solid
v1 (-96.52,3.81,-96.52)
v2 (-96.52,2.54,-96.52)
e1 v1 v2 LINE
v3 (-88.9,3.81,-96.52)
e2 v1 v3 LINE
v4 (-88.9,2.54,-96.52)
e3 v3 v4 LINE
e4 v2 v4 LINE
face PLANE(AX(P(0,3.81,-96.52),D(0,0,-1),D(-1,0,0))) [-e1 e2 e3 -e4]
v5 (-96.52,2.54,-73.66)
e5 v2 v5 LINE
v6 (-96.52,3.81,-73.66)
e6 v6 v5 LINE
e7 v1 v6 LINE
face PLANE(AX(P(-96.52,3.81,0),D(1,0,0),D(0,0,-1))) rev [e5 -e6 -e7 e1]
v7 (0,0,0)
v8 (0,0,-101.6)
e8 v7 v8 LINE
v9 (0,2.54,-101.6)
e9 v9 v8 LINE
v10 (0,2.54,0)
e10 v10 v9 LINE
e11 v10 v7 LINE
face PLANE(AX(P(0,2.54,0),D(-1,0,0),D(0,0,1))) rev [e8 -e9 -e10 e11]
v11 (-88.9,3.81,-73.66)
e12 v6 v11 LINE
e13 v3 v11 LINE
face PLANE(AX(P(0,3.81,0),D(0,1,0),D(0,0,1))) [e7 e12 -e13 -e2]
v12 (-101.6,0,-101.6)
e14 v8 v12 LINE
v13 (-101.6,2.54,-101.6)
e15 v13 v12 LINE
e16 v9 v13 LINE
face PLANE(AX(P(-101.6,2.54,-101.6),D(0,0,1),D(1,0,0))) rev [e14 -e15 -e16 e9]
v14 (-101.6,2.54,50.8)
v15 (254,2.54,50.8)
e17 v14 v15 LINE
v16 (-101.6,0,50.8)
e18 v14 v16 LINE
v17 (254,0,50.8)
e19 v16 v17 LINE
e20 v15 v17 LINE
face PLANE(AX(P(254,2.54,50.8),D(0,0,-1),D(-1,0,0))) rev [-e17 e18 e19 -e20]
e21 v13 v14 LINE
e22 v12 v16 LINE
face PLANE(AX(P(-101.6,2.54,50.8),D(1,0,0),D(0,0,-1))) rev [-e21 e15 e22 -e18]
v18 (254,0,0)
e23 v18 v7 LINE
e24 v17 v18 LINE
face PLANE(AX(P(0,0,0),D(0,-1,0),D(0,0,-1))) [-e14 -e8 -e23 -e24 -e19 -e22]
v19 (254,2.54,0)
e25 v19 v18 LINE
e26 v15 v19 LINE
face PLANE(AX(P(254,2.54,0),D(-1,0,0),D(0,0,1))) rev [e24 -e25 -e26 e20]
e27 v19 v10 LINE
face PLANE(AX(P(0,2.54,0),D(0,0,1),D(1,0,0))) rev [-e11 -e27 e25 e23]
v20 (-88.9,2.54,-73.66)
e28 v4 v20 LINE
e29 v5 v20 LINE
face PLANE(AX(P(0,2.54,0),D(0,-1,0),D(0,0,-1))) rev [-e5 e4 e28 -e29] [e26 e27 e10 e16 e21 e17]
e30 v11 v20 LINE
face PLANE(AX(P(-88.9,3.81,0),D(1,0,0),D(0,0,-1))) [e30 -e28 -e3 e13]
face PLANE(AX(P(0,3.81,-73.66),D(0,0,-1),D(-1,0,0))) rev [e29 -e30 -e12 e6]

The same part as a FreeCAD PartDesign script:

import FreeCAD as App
import Part
import Sketcher
Q = App.Units.Quantity

doc = App.newDocument("Part")
body = doc.addObject("PartDesign::Body", "Body")

# Sketch on XZ plane
sketch1 = body.newObject("Sketcher::SketchObject", "Sketch")
sketch1.AttachmentSupport = (doc.getObject("XZ_Plane"), [""])
sketch1.MapMode = "FlatFace"
sketch1.addGeometry([
    Part.LineSegment(App.Vector(0, 0, 0), App.Vector(0, -102, 0)),  # 0
    Part.LineSegment(App.Vector(0, -102, 0), App.Vector(-102, -102, 0)),  # 1
    Part.LineSegment(App.Vector(-102, -102, 0), App.Vector(-102, 51, 0)),  # 2
    Part.LineSegment(App.Vector(-102, 51, 0), App.Vector(254, 51, 0)),  # 3
    Part.LineSegment(App.Vector(254, 51, 0), App.Vector(254, 0, 0)),  # 4
    Part.LineSegment(App.Vector(254, 0, 0), App.Vector(0, 0, 0)),  # 5
], False)
sketch1.addConstraint([
    Sketcher.Constraint("Coincident", 0, 2, 1, 1),
    Sketcher.Constraint("Coincident", 1, 2, 2, 1),
    Sketcher.Constraint("Coincident", 2, 2, 3, 1),
    Sketcher.Constraint("Coincident", 3, 2, 4, 1),
    Sketcher.Constraint("Coincident", 4, 2, 5, 1),
    Sketcher.Constraint("Coincident", 5, 2, 0, 1),
    Sketcher.Constraint("Vertical", 0),
    Sketcher.Constraint("Horizontal", 1),
    Sketcher.Constraint("Vertical", 2),
    Sketcher.Constraint("Horizontal", 3),
    Sketcher.Constraint("Vertical", 4),
    Sketcher.Constraint("Horizontal", 5),
    Sketcher.Constraint("Coincident", 5, 2, -1, 1),
    Sketcher.Constraint("Equal", 1, 0),
    Sketcher.Constraint("DistanceX", 1, 2, 1, 1, Q("4 in")),
    Sketcher.Constraint("DistanceX", 3, 1, 3, 2, Q("14 in")),
    Sketcher.Constraint("DistanceY", 2, 1, 2, 2, Q("6 in")),
])
pad1 = body.newObject("PartDesign::Pad", "Pad")
pad1.Profile = sketch1
pad1.Length = Q("0.1 in")
pad1.Reversed = True

# Sketch on XZ plane
sketch2 = body.newObject("Sketcher::SketchObject", "Sketch001")
sketch2.AttachmentSupport = (doc.getObject("XZ_Plane"), [""])
sketch2.MapMode = "FlatFace"
sketch2.AttachmentOffset = App.Placement(App.Vector(0, 0, -0.1 * 25.4), App.Rotation())
sketch2.addGeometry([
    Part.LineSegment(App.Vector(-97, -97, 0), App.Vector(-97, -74, 0)),
    Part.LineSegment(App.Vector(-97, -74, 0), App.Vector(-89, -74, 0)),
    Part.LineSegment(App.Vector(-89, -74, 0), App.Vector(-89, -97, 0)),
    Part.LineSegment(App.Vector(-89, -97, 0), App.Vector(-97, -97, 0)),
], False)
sketch2.addConstraint([
    Sketcher.Constraint("Coincident", 0, 2, 1, 1),
    Sketcher.Constraint("Coincident", 1, 2, 2, 1),
    Sketcher.Constraint("Coincident", 2, 2, 3, 1),
    Sketcher.Constraint("Coincident", 3, 2, 0, 1),
    Sketcher.Constraint("Vertical", 0),
    Sketcher.Constraint("Horizontal", 1),
    Sketcher.Constraint("Vertical", 2),
    Sketcher.Constraint("Horizontal", 3),
    Sketcher.Constraint("DistanceX", 1, 1, 1, 2, Q("0.3 in")),
    Sketcher.Constraint("DistanceY", 0, 1, 0, 2, Q("0.9 in")),
    Sketcher.Constraint("DistanceX", 0, 2, -1, 1, Q("3.8 in")),
    Sketcher.Constraint("DistanceY", 0, 2, -1, 1, Q("2.9 in")),
])
pad2 = body.newObject("PartDesign::Pad", "Pad001")
pad2.Profile = sketch2
pad2.Length = Q("0.05 in")
pad2.Reversed = True

doc.recompute()
